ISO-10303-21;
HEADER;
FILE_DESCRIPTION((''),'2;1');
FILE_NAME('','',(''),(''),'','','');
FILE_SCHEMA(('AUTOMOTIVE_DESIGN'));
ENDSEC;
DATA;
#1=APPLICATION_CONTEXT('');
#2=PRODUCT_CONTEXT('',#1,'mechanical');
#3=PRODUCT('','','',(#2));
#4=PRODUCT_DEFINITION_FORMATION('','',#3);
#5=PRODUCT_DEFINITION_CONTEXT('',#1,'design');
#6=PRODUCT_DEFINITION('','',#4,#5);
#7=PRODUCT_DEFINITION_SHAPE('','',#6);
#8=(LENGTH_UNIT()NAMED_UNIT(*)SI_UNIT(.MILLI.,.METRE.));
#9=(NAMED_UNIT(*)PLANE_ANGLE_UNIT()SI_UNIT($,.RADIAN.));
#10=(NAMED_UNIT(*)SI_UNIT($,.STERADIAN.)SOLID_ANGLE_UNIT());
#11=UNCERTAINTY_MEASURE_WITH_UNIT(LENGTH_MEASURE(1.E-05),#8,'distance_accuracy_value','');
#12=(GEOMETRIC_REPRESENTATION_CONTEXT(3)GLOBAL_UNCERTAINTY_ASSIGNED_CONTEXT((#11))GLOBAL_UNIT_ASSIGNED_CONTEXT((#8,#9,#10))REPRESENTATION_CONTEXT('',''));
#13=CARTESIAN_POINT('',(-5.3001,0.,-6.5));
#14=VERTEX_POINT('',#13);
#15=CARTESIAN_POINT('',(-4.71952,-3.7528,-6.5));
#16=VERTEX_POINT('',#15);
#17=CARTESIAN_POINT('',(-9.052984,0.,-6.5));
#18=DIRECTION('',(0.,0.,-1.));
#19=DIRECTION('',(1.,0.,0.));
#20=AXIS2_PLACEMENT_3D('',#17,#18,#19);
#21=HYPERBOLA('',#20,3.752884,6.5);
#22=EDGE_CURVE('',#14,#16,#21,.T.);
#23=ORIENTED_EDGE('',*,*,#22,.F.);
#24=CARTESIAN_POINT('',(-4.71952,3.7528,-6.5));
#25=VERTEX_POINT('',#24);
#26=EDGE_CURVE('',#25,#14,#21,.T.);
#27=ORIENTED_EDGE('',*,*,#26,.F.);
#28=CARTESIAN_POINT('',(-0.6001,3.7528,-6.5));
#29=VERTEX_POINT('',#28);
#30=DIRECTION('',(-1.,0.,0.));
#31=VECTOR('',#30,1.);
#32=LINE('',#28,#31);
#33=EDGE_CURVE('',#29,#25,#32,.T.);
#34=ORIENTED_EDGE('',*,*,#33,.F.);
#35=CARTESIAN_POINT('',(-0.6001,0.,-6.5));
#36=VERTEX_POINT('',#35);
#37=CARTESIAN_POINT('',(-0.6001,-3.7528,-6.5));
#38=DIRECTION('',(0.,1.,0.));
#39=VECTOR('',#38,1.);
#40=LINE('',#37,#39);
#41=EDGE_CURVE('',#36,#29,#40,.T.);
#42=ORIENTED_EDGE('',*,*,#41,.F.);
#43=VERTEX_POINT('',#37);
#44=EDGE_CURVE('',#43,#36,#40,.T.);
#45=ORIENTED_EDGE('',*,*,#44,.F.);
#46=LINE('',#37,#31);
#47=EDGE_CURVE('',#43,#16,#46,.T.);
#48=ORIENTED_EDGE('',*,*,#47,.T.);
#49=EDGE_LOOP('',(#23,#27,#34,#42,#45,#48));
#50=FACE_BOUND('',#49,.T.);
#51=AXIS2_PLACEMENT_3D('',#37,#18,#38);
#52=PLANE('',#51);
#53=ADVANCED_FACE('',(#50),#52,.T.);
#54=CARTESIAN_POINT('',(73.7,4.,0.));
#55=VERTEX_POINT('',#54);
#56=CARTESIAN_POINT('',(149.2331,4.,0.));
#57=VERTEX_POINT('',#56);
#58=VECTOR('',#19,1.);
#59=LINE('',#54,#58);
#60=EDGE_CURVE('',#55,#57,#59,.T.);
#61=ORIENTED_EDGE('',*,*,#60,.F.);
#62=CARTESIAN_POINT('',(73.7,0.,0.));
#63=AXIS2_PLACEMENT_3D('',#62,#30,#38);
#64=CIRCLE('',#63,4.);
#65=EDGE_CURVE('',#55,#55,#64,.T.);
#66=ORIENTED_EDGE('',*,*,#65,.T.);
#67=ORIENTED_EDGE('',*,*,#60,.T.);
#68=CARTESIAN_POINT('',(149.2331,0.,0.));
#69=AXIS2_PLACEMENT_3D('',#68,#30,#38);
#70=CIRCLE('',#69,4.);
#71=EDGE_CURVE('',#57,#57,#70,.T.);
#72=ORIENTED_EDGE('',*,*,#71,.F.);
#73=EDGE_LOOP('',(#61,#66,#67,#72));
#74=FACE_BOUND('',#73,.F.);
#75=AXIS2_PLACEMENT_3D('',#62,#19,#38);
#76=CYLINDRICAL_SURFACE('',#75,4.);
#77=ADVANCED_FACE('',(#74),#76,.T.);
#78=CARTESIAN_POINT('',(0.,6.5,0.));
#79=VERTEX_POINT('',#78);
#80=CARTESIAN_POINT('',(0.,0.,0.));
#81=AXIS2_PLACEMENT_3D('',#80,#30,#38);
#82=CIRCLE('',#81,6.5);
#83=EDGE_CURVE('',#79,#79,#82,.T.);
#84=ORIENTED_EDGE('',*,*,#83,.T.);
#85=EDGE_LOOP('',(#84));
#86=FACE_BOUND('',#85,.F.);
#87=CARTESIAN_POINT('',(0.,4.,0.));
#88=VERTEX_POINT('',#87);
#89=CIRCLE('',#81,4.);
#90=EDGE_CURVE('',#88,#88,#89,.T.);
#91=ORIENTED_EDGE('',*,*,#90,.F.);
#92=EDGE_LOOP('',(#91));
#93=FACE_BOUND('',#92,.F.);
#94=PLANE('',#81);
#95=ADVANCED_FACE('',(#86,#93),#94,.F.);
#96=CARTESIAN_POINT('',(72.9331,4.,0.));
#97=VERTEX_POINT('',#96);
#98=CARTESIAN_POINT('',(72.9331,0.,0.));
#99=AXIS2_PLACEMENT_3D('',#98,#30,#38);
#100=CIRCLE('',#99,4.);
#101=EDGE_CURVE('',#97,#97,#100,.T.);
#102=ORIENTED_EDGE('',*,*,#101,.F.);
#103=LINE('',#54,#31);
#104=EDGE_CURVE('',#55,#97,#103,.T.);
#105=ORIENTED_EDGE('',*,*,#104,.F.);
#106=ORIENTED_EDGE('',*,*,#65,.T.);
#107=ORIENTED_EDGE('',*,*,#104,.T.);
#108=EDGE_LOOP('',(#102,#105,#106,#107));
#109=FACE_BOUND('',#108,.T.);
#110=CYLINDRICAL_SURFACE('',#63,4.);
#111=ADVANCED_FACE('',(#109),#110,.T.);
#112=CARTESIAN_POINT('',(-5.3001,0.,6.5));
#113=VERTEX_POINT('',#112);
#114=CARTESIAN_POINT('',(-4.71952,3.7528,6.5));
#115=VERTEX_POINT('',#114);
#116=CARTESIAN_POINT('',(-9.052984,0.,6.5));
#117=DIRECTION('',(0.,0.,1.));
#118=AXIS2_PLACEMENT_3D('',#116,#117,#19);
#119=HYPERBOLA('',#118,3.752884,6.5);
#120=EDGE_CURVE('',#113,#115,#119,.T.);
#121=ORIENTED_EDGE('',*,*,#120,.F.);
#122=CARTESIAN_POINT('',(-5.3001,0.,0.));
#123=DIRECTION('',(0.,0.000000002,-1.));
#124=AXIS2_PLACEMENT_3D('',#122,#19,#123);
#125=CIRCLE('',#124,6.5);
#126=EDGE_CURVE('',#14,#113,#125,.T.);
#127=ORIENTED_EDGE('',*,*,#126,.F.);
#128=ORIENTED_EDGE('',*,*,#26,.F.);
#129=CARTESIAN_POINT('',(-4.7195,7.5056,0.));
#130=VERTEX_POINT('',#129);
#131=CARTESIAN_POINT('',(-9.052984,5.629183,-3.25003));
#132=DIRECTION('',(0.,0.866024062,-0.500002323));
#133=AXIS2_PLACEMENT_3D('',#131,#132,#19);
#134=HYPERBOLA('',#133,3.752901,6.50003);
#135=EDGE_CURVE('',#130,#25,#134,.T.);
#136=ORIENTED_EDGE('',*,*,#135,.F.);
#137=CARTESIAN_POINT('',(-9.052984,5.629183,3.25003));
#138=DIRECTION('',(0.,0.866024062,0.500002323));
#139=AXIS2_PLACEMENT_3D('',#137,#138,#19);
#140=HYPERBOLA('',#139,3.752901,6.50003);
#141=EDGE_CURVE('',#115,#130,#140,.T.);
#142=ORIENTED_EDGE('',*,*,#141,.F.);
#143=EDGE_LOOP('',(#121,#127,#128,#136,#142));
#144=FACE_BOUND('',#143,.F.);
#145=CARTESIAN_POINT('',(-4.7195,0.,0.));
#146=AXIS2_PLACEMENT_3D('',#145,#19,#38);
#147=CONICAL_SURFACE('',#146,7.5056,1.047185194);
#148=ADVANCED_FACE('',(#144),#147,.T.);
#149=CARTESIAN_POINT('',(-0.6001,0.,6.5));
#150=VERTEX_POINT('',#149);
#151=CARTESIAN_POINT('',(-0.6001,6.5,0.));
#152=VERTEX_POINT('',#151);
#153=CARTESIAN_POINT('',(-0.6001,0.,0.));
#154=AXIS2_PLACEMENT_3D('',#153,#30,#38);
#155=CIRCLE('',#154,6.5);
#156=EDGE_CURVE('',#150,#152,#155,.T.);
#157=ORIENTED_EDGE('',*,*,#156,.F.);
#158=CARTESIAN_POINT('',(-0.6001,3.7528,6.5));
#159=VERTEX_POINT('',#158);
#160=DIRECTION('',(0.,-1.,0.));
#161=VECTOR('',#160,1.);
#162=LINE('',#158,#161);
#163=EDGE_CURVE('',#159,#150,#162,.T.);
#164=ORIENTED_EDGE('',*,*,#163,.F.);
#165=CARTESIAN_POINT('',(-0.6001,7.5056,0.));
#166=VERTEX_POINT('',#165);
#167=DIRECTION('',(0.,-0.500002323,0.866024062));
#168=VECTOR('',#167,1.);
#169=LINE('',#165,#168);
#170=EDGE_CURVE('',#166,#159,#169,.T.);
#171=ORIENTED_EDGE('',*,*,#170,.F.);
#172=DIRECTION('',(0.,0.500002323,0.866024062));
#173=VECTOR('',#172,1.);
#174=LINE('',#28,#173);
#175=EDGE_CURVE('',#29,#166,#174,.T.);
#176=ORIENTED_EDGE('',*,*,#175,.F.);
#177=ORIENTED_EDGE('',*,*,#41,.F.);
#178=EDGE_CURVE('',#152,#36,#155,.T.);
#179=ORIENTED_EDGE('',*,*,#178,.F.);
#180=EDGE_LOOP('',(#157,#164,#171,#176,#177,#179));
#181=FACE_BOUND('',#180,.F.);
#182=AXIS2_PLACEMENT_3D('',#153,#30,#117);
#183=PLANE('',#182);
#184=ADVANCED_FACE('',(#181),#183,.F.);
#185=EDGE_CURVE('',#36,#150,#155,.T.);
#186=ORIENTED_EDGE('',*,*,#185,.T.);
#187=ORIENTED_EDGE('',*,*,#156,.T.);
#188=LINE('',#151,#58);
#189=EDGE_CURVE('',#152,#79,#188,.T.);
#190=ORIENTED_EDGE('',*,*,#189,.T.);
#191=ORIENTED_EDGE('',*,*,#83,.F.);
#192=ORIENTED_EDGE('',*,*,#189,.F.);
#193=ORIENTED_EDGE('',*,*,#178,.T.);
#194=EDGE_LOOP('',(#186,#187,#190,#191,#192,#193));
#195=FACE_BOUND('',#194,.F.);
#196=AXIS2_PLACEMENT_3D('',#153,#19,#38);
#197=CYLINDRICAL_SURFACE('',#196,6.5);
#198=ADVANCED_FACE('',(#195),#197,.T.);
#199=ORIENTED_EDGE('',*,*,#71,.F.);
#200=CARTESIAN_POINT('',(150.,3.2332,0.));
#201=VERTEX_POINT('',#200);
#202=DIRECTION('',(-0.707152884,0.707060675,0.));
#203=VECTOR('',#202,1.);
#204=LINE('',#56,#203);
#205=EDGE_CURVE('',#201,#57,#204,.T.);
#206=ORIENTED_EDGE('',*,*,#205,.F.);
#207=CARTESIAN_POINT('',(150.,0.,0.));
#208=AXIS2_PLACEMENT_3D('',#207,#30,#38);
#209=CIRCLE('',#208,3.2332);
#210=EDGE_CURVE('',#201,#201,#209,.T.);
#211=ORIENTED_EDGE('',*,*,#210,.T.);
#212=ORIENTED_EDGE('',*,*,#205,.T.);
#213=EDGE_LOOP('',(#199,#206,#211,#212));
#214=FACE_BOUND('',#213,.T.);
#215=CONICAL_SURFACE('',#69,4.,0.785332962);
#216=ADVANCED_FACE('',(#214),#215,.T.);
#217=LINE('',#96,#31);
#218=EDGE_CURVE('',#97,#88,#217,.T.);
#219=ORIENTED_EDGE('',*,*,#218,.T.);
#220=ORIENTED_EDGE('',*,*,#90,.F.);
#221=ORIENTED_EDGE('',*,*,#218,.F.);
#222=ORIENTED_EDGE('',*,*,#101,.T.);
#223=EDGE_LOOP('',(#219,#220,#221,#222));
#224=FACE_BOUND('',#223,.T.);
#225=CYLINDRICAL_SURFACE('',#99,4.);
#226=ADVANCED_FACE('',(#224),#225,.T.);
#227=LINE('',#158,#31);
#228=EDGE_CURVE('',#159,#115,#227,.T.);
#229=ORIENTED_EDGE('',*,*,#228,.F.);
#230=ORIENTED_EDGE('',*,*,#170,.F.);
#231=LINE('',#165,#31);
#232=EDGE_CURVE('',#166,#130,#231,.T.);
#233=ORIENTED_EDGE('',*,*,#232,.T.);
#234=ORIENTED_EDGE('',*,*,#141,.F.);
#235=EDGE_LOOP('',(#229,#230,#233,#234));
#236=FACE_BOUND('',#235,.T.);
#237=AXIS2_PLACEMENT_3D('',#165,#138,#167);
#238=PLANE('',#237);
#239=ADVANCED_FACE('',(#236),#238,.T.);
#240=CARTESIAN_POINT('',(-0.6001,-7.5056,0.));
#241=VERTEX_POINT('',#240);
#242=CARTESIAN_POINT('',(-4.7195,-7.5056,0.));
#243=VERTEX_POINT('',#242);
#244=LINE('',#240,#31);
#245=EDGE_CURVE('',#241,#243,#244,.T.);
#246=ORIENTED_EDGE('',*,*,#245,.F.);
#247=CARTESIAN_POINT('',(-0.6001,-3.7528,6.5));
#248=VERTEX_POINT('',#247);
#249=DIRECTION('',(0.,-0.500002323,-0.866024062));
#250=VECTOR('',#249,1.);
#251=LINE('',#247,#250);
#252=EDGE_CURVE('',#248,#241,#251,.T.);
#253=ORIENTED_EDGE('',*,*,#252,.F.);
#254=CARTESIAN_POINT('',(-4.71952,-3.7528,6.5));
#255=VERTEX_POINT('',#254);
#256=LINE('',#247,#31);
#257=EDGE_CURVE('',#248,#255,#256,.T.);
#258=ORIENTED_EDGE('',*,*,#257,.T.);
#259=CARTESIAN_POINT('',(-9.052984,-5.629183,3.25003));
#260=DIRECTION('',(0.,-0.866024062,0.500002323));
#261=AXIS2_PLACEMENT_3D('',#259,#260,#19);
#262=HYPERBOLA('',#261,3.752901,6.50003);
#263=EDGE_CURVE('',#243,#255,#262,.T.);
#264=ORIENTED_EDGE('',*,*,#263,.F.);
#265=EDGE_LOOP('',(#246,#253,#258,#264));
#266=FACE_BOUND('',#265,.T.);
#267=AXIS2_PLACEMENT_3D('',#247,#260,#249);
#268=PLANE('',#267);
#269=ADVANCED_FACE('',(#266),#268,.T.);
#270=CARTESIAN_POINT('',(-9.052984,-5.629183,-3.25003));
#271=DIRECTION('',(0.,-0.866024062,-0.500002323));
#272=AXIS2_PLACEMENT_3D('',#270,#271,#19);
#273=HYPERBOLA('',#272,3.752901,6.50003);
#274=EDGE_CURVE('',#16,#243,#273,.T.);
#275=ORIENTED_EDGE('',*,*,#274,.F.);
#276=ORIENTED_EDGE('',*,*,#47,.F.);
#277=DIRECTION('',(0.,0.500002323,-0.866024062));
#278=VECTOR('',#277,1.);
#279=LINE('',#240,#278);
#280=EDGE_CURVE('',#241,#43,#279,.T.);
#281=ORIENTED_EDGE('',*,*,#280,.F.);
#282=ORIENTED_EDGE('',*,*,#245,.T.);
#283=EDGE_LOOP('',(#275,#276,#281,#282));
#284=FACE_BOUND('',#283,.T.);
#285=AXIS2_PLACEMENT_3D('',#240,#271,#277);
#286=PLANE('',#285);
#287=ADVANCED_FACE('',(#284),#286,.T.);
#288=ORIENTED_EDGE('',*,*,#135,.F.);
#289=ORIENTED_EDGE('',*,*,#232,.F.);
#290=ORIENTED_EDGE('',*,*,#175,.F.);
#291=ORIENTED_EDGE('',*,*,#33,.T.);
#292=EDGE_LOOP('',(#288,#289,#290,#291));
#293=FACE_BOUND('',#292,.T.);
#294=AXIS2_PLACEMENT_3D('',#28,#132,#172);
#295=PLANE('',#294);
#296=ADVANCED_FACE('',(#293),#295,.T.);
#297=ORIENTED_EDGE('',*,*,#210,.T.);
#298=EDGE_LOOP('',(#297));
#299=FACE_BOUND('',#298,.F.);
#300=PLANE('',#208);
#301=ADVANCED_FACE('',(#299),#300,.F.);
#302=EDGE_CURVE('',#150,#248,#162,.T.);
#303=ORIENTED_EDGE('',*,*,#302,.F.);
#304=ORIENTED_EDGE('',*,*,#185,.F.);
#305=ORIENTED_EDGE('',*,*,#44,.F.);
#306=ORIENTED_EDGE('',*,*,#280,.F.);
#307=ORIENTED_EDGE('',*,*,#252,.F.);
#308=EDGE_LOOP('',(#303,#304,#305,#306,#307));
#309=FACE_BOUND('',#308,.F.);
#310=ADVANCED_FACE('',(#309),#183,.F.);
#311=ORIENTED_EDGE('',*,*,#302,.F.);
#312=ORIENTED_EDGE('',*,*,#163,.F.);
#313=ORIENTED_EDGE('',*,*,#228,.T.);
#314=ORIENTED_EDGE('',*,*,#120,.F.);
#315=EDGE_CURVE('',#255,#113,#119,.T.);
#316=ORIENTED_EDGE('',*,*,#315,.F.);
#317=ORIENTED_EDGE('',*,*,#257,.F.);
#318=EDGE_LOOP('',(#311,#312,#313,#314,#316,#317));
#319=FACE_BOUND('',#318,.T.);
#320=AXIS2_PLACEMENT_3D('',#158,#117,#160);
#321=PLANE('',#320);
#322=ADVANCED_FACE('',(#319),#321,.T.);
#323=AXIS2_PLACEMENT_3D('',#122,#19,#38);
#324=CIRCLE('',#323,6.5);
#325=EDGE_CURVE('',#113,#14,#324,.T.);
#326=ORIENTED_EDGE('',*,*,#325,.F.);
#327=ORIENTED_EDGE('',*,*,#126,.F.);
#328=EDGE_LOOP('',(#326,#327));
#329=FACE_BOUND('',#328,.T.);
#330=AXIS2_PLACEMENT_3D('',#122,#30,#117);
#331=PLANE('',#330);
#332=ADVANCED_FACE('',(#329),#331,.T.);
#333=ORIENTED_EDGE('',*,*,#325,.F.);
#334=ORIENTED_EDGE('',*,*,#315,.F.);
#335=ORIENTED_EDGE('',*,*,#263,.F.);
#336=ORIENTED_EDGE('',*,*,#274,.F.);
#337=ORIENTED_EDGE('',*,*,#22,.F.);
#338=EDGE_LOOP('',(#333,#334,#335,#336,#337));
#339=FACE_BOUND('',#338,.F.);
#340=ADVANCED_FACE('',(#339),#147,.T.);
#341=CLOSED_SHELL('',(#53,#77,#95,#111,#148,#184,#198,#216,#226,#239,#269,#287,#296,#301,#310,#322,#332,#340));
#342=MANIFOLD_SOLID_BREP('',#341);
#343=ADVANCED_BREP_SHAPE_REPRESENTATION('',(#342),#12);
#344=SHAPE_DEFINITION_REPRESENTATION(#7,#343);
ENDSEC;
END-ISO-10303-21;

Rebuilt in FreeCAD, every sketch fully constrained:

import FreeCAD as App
import Part
import Sketcher
Q = App.Units.Quantity


def edges_at(feature, points):
    """Names of the edges that pass closest to the given points."""
    edges = feature.Shape.Edges
    near = lambda p: min(range(len(edges)), key=lambda i: edges[i].distToShape(Part.Vertex(*p))[0])
    return sorted({f"Edge{near(p) + 1}" for p in points})

doc = App.newDocument("Part")
params = doc.addObject("Spreadsheet::Sheet", "Params")
for row, (alias, value) in enumerate([
    ("sketch1_width", "150 mm"),
    ("sketch1_width2", "0.6 mm"),
    ("sketch1_height", "4 mm"),
    ("sketch1_height2", "2.5 mm"),
    ("revolution_angle", "360 deg"),
    ("pad1_length", "4.7 mm"),
    ("groove_angle", "360 deg"),
    ("chamfer_size", "0.7668 mm"),
    ("chamfer_size2", "0.7669 mm"),
], start=1):
    params.set(f"A{row}", alias)
    params.set(f"B{row}", "=" + value)
    params.setAlias(f"B{row}", alias)

body = doc.addObject("PartDesign::Body", "Body")

# Sketch on XY plane
sketch1 = body.newObject("Sketcher::SketchObject", "Sketch")
sketch1.AttachmentSupport = (doc.getObject("XY_Plane"), [""])
sketch1.MapMode = "FlatFace"
sketch1.addGeometry([
    Part.LineSegment(App.Vector(0, 4, 0), App.Vector(0, 6.5, 0)),  # 0
    Part.LineSegment(App.Vector(0, 6.5, 0), App.Vector(-0.6, 6.5, 0)),  # 1
    Part.LineSegment(App.Vector(-0.6, 6.5, 0), App.Vector(-0.6, 0, 0)),  # 2
    Part.LineSegment(App.Vector(-0.6, 0, 0), App.Vector(150, 0, 0)),  # 3
    Part.LineSegment(App.Vector(150, 0, 0), App.Vector(150, 4, 0)),  # 4
    Part.LineSegment(App.Vector(150, 4, 0), App.Vector(0, 4, 0)),  # 5
], False)
sketch1.addConstraint([
    Sketcher.Constraint("Coincident", 0, 2, 1, 1),
    Sketcher.Constraint("Coincident", 1, 2, 2, 1),
    Sketcher.Constraint("Coincident", 2, 2, 3, 1),
    Sketcher.Constraint("Coincident", 3, 2, 4, 1),
    Sketcher.Constraint("Coincident", 4, 2, 5, 1),
    Sketcher.Constraint("Coincident", 5, 2, 0, 1),
    Sketcher.Constraint("Vertical", 0),
    Sketcher.Constraint("Horizontal", 1),
    Sketcher.Constraint("Vertical", 2),
    Sketcher.Constraint("Horizontal", 3),
    Sketcher.Constraint("Vertical", 4),
    Sketcher.Constraint("Horizontal", 5),
    Sketcher.Constraint("PointOnObject", 0, 2, -2),
    Sketcher.Constraint("PointOnObject", 2, 2, -1),
    Sketcher.Constraint("DistanceX", 5, 2, 5, 1, Q("150 mm")),
    Sketcher.Constraint("DistanceX", 1, 2, 1, 1, Q("0.6 mm")),
    Sketcher.Constraint("DistanceY", 4, 1, 4, 2, Q("4 mm")),
    Sketcher.Constraint("DistanceY", 0, 1, 0, 2, Q("2.5 mm")),
])
sketch1.setExpression("Constraints[14]", "Params.sketch1_width")
sketch1.setExpression("Constraints[15]", "Params.sketch1_width2")
sketch1.setExpression("Constraints[16]", "Params.sketch1_height")
sketch1.setExpression("Constraints[17]", "Params.sketch1_height2")
revolution = body.newObject("PartDesign::Revolution", "Revolution")
revolution.Profile = sketch1
revolution.ReferenceAxis = (sketch1, ["H_Axis"])
revolution.setExpression("Angle", "Params.revolution_angle")

# Sketch on YZ plane
sketch2 = body.newObject("Sketcher::SketchObject", "Sketch001")
sketch2.AttachmentSupport = (doc.getObject("YZ_Plane"), [""])
sketch2.MapMode = "FlatFace"
sketch2.AttachmentOffset = App.Placement(App.Vector(0, 0, -0.6001), App.Rotation())
sketch2.addGeometry([
    Part.LineSegment(App.Vector(4, 6, 0), App.Vector(8, 0, 0)),  # 0
    Part.LineSegment(App.Vector(8, 0, 0), App.Vector(4, -6, 0)),  # 1
    Part.LineSegment(App.Vector(4, -6, 0), App.Vector(-4, -6, 0)),  # 2
    Part.LineSegment(App.Vector(-4, -6, 0), App.Vector(-8, 0, 0)),  # 3
    Part.LineSegment(App.Vector(-8, 0, 0), App.Vector(-4, 6, 0)),  # 4
    Part.LineSegment(App.Vector(-4, 6, 0), App.Vector(4, 6, 0)),  # 5
], False)
sketch2.addConstraint([
    Sketcher.Constraint("Coincident", 0, 2, 1, 1),
    Sketcher.Constraint("Coincident", 1, 2, 2, 1),
    Sketcher.Constraint("Coincident", 2, 2, 3, 1),
    Sketcher.Constraint("Coincident", 3, 2, 4, 1),
    Sketcher.Constraint("Coincident", 4, 2, 5, 1),
    Sketcher.Constraint("Coincident", 5, 2, 0, 1),
    Sketcher.Constraint("Horizontal", 2),
    Sketcher.Constraint("Horizontal", 5),
    Sketcher.Constraint("Symmetric", 0, 2, 3, 2, -1, 1),
    Sketcher.Constraint("Symmetric", 1, 2, 4, 2, -1, 1),
    Sketcher.Constraint("PointOnObject", 0, 2, -1),
    Sketcher.Constraint("Parallel", 0, 3),
    Sketcher.Constraint("Vertical", 2, 2, 4, 2),
    Sketcher.Constraint("DistanceY", 2, 2, 4, 2, Q("13 mm")),
    Sketcher.Constraint("Angle", 0, Q("-59.9998 deg")),
    Sketcher.Constraint("DistanceX", 2, 2, 2, 1, Q("7.5056 mm")),
])
pad1 = body.newObject("PartDesign::Pad", "Pad")
pad1.Profile = sketch2
pad1.setExpression("Length", "Params.pad1_length")
pad1.Reversed = True

# Sketch on XY plane
sketch3 = body.newObject("Sketcher::SketchObject", "Sketch002")
sketch3.AttachmentSupport = (doc.getObject("XY_Plane"), [""])
sketch3.MapMode = "FlatFace"
sketch3.addGeometry([
    Part.LineSegment(App.Vector(-5.3, 7.5, 0), App.Vector(-5.3, 6.5, 0)),
    Part.LineSegment(App.Vector(-5.3, 6.5, 0), App.Vector(-4.7, 7.5, 0)),
    Part.LineSegment(App.Vector(-4.7, 7.5, 0), App.Vector(-5.3, 7.5, 0)),
], False)
sketch3.addConstraint([
    Sketcher.Constraint("Coincident", 0, 2, 1, 1),
    Sketcher.Constraint("Coincident", 1, 2, 2, 1),
    Sketcher.Constraint("Coincident", 2, 2, 0, 1),
    Sketcher.Constraint("Vertical", 0),
    Sketcher.Constraint("Horizontal", 2),
    Sketcher.Constraint("Angle", 1, Q("59.9993 deg")),
    Sketcher.Constraint("DistanceX", 0, 2, -1, 1, Q("5.3 mm")),
    Sketcher.Constraint("DistanceY", -1, 1, 0, 2, Q("6.5 mm")),
    Sketcher.Constraint("DistanceX", 2, 2, 2, 1, Q("0.5806 mm")),
])
groove = body.newObject("PartDesign::Groove", "Groove")
groove.Profile = sketch3
groove.ReferenceAxis = (sketch3, ["H_Axis"])
groove.setExpression("Angle", "Params.groove_angle")
doc.recompute()

chamfer = body.newObject("PartDesign::Chamfer", "Chamfer")
chamfer.Base = (groove, edges_at(groove, [(150, -4, 0)]))
chamfer.ChamferType = "Two distances"
chamfer.setExpression("Size", "Params.chamfer_size")
chamfer.setExpression("Size2", "Params.chamfer_size2")

doc.recompute()
